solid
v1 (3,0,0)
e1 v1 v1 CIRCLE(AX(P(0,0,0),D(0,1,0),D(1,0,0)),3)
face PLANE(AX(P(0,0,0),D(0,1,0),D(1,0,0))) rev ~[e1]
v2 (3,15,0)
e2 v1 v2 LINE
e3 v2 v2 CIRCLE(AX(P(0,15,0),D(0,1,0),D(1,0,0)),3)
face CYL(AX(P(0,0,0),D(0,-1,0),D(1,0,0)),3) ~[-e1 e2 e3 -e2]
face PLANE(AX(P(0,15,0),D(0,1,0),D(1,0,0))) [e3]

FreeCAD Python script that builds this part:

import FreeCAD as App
import Part
import Sketcher
from FreeCAD import Vector

doc = App.newDocument("Part")
body = doc.addObject("PartDesign::Body", "Body")

sketch1 = body.newObject("Sketcher::SketchObject", "Sketch")
sketch1.AttachmentSupport = (doc.getObject("XZ_Plane"), [""])
sketch1.MapMode = "FlatFace"
sketch1.addGeometry(Part.Circle(Vector(0, 0, 0), Vector(0, 0, 1), 3), False)
sketch1.addConstraint([
    Sketcher.Constraint("Coincident", 0, 3, -1, 1),
    Sketcher.Constraint("Diameter", 0, 6.0),
])
pad1 = body.newObject("PartDesign::Pad", "Pad")
pad1.Profile = sketch1
pad1.Length = 15
pad1.Reversed = True

doc.recompute()
